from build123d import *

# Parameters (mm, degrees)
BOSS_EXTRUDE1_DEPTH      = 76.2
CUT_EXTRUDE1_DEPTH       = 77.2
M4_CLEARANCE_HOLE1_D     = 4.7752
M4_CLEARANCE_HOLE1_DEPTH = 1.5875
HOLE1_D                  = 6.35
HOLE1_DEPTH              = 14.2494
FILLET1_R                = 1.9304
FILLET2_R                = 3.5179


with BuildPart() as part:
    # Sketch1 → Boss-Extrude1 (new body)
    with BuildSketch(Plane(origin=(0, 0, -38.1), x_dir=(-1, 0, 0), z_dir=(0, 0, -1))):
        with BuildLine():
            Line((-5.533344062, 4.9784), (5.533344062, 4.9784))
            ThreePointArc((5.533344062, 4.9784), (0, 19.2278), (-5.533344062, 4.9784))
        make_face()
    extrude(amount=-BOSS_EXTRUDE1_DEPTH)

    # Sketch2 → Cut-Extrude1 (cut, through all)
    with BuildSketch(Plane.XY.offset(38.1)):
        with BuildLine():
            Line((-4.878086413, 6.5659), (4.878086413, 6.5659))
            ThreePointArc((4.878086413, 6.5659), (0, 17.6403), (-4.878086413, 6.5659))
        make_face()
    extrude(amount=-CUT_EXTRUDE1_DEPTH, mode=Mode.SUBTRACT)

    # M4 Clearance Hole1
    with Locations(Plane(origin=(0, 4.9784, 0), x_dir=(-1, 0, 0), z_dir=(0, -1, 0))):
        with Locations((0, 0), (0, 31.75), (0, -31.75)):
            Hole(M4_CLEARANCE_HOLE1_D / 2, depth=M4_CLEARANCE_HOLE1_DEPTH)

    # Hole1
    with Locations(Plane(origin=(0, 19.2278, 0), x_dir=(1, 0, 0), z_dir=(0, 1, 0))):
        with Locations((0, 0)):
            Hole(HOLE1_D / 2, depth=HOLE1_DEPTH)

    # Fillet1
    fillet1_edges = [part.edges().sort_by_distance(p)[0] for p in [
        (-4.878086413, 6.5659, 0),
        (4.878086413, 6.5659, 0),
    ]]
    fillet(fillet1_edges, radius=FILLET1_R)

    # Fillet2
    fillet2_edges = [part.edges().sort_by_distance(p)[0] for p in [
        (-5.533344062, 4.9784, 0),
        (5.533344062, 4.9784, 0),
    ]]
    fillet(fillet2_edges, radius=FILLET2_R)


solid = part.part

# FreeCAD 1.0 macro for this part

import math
import FreeCAD as App
import Part
import Sketcher
from FreeCAD import Vector
Q = App.Units.Quantity


def edges_at(feature, points):
    """Names of the edges that pass closest to the given points."""
    edges = feature.Shape.Edges
    near = lambda p: min(range(len(edges)), key=lambda i: edges[i].distToShape(Part.Vertex(*p))[0])
    return sorted({f"Edge{near(p) + 1}" for p in points})

doc = App.newDocument("Part")
body = doc.addObject("PartDesign::Body", "Body")

# Sketch on XY plane
sketch1 = body.newObject("Sketcher::SketchObject", "Sketch")
sketch1.AttachmentSupport = (doc.getObject("XY_Plane"), [""])
sketch1.MapMode = "FlatFace"
sketch1.AttachmentOffset = App.Placement(Vector(0, 0, -1.5 * 25.4), App.Rotation())
sketch1.addGeometry(Part.LineSegment(Vector(6, 5, 0), Vector(-6, 5, 0)), False)
sketch1.addGeometry(Part.ArcOfCircle(Part.Circle(Vector(0, 11, 0), Vector(0, 0, 1), 8), math.radians(-48), math.radians(228)), False)
sketch1.addConstraint(Sketcher.Constraint("Coincident", 0, 1, 1, 1))
sketch1.addConstraint(Sketcher.Constraint("Coincident", 1, 2, 0, 2))
sketch1.addConstraint(Sketcher.Constraint("Horizontal", 0))
sketch1.addConstraint(Sketcher.Constraint("PointOnObject", 1, 3, -2))
sketch1.addConstraint(Sketcher.Constraint("DistanceY", -1, 1, 0, 1, Q("0.196 in")))
sketch1.addConstraint(Sketcher.Constraint("Radius", 1, Q("8.199057 mm")))
sketch1.addConstraint(Sketcher.Constraint("DistanceX", 0, 2, 0, 1, Q("11.066688 mm")))
pad1 = body.newObject("PartDesign::Pad", "Pad")
pad1.Profile = sketch1
pad1.Length = Q("3 in")

# Sketch on XY plane
sketch2 = body.newObject("Sketcher::SketchObject", "Sketch001")
sketch2.AttachmentSupport = (doc.getObject("XY_Plane"), [""])
sketch2.MapMode = "FlatFace"
sketch2.AttachmentOffset = App.Placement(Vector(0, 0, 1.5 * 25.4), App.Rotation())
sketch2.addGeometry(Part.LineSegment(Vector(-5, 7, 0), Vector(5, 7, 0)), False)
sketch2.addGeometry(Part.ArcOfCircle(Part.Circle(Vector(0, 11, 0), Vector(0, 0, 1), 7), math.radians(-42), math.radians(222)), False)
sketch2.addConstraint(Sketcher.Constraint("Coincident", 0, 1, 1, 2))
sketch2.addConstraint(Sketcher.Constraint("Coincident", 1, 1, 0, 2))
sketch2.addConstraint(Sketcher.Constraint("Horizontal", 0))
sketch2.addConstraint(Sketcher.Constraint("PointOnObject", 1, 3, -2))
sketch2.addConstraint(Sketcher.Constraint("DistanceY", -1, 1, 0, 1, Q("0.2585 in")))
sketch2.addConstraint(Sketcher.Constraint("Radius", 1, Q("6.611557 mm")))
sketch2.addConstraint(Sketcher.Constraint("DistanceX", 0, 1, 0, 2, Q("9.756173 mm")))
pocket1 = body.newObject("PartDesign::Pocket", "Pocket")
pocket1.Profile = sketch2
pocket1.Type = "ThroughAll"

# Sketch on XZ plane
sketch3 = body.newObject("Sketcher::SketchObject", "Sketch002")
sketch3.AttachmentSupport = (doc.getObject("XZ_Plane"), [""])
sketch3.MapMode = "FlatFace"
sketch3.AttachmentOffset = App.Placement(Vector(0, 0, -0.196 * 25.4), App.Rotation())
sketch3.addGeometry(Part.Circle(Vector(0, 0, 0), Vector(0, 0, 1), 2.4), False)
sketch3.addGeometry(Part.Circle(Vector(0, -31.8, 0), Vector(0, 0, 1), 2.4), False)
sketch3.addGeometry(Part.Circle(Vector(0, 31.8, 0), Vector(0, 0, 1), 2.4), False)
sketch3.addConstraint(Sketcher.Constraint("Coincident", 0, 3, -1, 1))
sketch3.addConstraint(Sketcher.Constraint("Equal", 0, 1))
sketch3.addConstraint(Sketcher.Constraint("Equal", 1, 2))
sketch3.addConstraint(Sketcher.Constraint("Symmetric", 1, 3, 2, 3, -1, 1))
sketch3.addConstraint(Sketcher.Constraint("PointOnObject", 1, 3, -2))
sketch3.addConstraint(Sketcher.Constraint("Diameter", 0, Q("0.188 in")))
sketch3.addConstraint(Sketcher.Constraint("DistanceY", 1, 3, 2, 3, Q("2.5 in")))
doc.recompute()
hole = body.newObject("PartDesign::Hole", "Hole")
hole.Profile = sketch3
hole.ThreadType = "None"
hole.Diameter = Q("0.188 in")
hole.DepthType = "Dimension"
hole.Depth = Q("0.0625 in")
hole.DrillPoint = "Flat"

# Sketch on XZ plane
sketch4 = body.newObject("Sketcher::SketchObject", "Sketch003")
sketch4.AttachmentSupport = (doc.getObject("XZ_Plane"), [""])
sketch4.MapMode = "FlatFace"
sketch4.AttachmentOffset = App.Placement(Vector(0, 0, -0.757 * 25.4), App.Rotation())
sketch4.addGeometry(Part.Circle(Vector(0, 0, 0), Vector(0, 0, 1), 3.2), False)
sketch4.addConstraint(Sketcher.Constraint("Coincident", 0, 3, -1, 1))
sketch4.addConstraint(Sketcher.Constraint("Diameter", 0, Q("0.25 in")))
doc.recompute()
hole2 = body.newObject("PartDesign::Hole", "Hole001")
hole2.Profile = sketch4
hole2.ThreadType = "None"
hole2.Diameter = Q("0.25 in")
hole2.DepthType = "Dimension"
hole2.Depth = Q("0.561 in")
hole2.DrillPoint = "Flat"
hole2.Reversed = True
doc.recompute()

fillet = body.newObject("PartDesign::Fillet", "Fillet")
fillet.Base = (hole2, edges_at(hole2, [(-4.878, 6.566, 0), (4.878, 6.566, 0)]))
fillet.Radius = Q("0.076 in")
doc.recompute()

fillet2 = body.newObject("PartDesign::Fillet", "Fillet001")
fillet2.Base = (fillet, edges_at(fillet, [(-5.533, 4.978, 0), (5.533, 4.978, 0)]))
fillet2.Radius = Q("0.1385 in")

doc.recompute()
